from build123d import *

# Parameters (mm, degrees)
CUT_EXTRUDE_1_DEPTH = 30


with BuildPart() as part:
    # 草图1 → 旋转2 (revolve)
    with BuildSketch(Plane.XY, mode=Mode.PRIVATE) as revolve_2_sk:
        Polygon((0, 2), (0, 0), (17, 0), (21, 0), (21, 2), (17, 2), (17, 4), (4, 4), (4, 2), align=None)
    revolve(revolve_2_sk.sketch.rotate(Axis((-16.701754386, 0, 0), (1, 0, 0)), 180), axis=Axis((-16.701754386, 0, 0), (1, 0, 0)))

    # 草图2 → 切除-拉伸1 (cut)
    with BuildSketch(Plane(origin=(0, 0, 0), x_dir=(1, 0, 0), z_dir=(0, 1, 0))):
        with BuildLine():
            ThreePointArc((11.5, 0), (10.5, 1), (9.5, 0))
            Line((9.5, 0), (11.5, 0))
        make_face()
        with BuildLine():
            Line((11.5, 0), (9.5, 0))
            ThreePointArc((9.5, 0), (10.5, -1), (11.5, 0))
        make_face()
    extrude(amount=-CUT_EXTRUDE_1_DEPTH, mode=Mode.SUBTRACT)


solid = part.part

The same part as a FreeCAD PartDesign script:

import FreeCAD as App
import Part
import Sketcher
from FreeCAD import Vector


def add_polygon(sketch, points):
    """Adds a closed chain of lines whose ends are joined by coincident constraints."""
    first, n = sketch.GeometryCount, len(points)
    for a, b in zip(points, points[1:] + points[:1]):
        sketch.addGeometry(Part.LineSegment(App.Vector(*a, 0), App.Vector(*b, 0)), False)
    for i in range(n):
        sketch.addConstraint(Sketcher.Constraint("Coincident", first + i, 2, first + (i + 1) % n, 1))

doc = App.newDocument("Part")
params = doc.addObject("Spreadsheet::Sheet", "Params")
for row, (alias, value) in enumerate([
    ("sketch1_width", "21 mm"),
    ("sketch1_width2", "4 mm"),
    ("sketch1_height", "2 mm"),
    ("revolution_angle", "360 deg"),
    ("sketch2_diameter", "2 mm"),
    ("pocket1_length", "30 mm"),
], start=1):
    params.set(f"A{row}", alias)
    params.set(f"B{row}", "=" + value)
    params.setAlias(f"B{row}", alias)

body = doc.addObject("PartDesign::Body", "Body")

# Sketch on XY plane
sketch1 = body.newObject("Sketcher::SketchObject", "Sketch")
sketch1.AttachmentSupport = (doc.getObject("XY_Plane"), [""])
sketch1.MapMode = "FlatFace"
add_polygon(sketch1, [(0, 2), (0, 0), (21, 0), (21, 2), (17, 2), (17, 4), (4, 4), (4, 2)])  # lines 0-7
sketch1.addConstraint(Sketcher.Constraint("Vertical", 0))
sketch1.addConstraint(Sketcher.Constraint("Horizontal", 1))
sketch1.addConstraint(Sketcher.Constraint("Vertical", 2))
sketch1.addConstraint(Sketcher.Constraint("Horizontal", 3))
sketch1.addConstraint(Sketcher.Constraint("Vertical", 4))
sketch1.addConstraint(Sketcher.Constraint("Horizontal", 5))
sketch1.addConstraint(Sketcher.Constraint("Vertical", 6))
sketch1.addConstraint(Sketcher.Constraint("Horizontal", 7))
sketch1.addConstraint(Sketcher.Constraint("Coincident", 0, 2, -1, 1))
sketch1.addConstraint(Sketcher.Constraint("Horizontal", 3, 2, 6, 2))
sketch1.addConstraint(Sketcher.Constraint("Equal", 3, 7))
sketch1.addConstraint(Sketcher.Constraint("Equal", 2, 4))
sketch1.addConstraint(Sketcher.Constraint("DistanceX", 1, 1, 1, 2, 21.0))
sketch1.addConstraint(Sketcher.Constraint("DistanceX", 3, 2, 3, 1, 4.0))
sketch1.addConstraint(Sketcher.Constraint("DistanceY", 0, 2, 0, 1, 2.0))
sketch1.setExpression("Constraints[20]", "Params.sketch1_width")
sketch1.setExpression("Constraints[21]", "Params.sketch1_width2")
sketch1.setExpression("Constraints[22]", "Params.sketch1_height")
revolution = body.newObject("PartDesign::Revolution", "Revolution")
revolution.Profile = sketch1
revolution.ReferenceAxis = (sketch1, ["H_Axis"])
revolution.setExpression("Angle", "Params.revolution_angle")

# Sketch on XZ plane
sketch2 = body.newObject("Sketcher::SketchObject", "Sketch001")
sketch2.AttachmentSupport = (doc.getObject("XZ_Plane"), [""])
sketch2.MapMode = "FlatFace"
sketch2.addGeometry(Part.Circle(Vector(10.5, 0, 0), Vector(0, 0, 1), 1), False)
sketch2.addConstraint(Sketcher.Constraint("PointOnObject", 0, 3, -1))
sketch2.addConstraint(Sketcher.Constraint("Diameter", 0, 2.0))
sketch2.addConstraint(Sketcher.Constraint("DistanceX", -1, 1, 0, 3, 10.5))
sketch2.setExpression("Constraints[1]", "Params.sketch2_diameter")
pocket1 = body.newObject("PartDesign::Pocket", "Pocket")
pocket1.Profile = sketch2
pocket1.setExpression("Length", "Params.pocket1_length")
pocket1.Reversed = True

doc.recompute()
